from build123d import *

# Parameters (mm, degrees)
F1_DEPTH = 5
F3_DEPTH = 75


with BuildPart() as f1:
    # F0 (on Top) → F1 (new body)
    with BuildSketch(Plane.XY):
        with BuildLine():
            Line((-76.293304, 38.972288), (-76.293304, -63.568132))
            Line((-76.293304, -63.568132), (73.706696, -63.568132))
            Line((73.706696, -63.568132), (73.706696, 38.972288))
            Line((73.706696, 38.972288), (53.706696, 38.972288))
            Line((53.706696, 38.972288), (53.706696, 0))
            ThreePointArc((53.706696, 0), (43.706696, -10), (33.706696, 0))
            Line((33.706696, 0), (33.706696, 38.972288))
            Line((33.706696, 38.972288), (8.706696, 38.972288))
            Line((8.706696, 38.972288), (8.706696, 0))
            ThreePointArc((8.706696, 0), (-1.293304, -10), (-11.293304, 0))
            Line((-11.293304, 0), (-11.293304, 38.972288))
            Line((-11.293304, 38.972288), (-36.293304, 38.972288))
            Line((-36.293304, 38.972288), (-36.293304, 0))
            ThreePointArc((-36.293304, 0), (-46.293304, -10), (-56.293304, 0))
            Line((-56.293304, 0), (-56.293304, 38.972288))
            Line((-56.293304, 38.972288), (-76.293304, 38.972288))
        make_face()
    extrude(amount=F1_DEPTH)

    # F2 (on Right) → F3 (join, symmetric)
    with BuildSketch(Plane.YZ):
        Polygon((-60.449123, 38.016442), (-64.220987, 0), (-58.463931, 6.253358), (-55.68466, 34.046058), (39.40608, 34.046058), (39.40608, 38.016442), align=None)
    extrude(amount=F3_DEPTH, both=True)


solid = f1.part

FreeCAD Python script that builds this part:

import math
import FreeCAD as App
import Part
import Sketcher

doc = App.newDocument("Part")
params = doc.addObject("Spreadsheet::Sheet", "Params")
for row, (alias, value) in enumerate([
    ("sketch1_radius", "10 mm"),
    ("sketch1_width", "150 mm"),
    ("sketch1_width2", "20 mm"),
    ("pad1_length", "5 mm"),
    ("pad2_length", "150 mm"),
], start=1):
    params.set(f"A{row}", alias)
    params.set(f"B{row}", "=" + value)
    params.setAlias(f"B{row}", alias)

body = doc.addObject("PartDesign::Body", "Body")

sketch1 = body.newObject("Sketcher::SketchObject", "Sketch")
sketch1.AttachmentSupport = (doc.getObject("XY_Plane"), [""])
sketch1.MapMode = "FlatFace"
sketch1.addGeometry(Part.LineSegment(App.Vector(-76.293304, 38.972288, 0), App.Vector(-76.293304, -63.568132, 0)), False)
sketch1.addGeometry(Part.LineSegment(App.Vector(-76.293304, -63.568132, 0), App.Vector(73.706696, -63.568132, 0)), False)
sketch1.addGeometry(Part.LineSegment(App.Vector(73.706696, -63.568132, 0), App.Vector(73.706696, 38.972288, 0)), False)
sketch1.addGeometry(Part.LineSegment(App.Vector(73.706696, 38.972288, 0), App.Vector(53.706696, 38.972288, 0)), False)
sketch1.addGeometry(Part.LineSegment(App.Vector(53.706696, 38.972288, 0), App.Vector(53.706696, 0, 0)), False)
sketch1.addGeometry(Part.ArcOfCircle(Part.Circle(App.Vector(43.706696, 0, 0), App.Vector(0, 0, 1), 10), math.radians(180), math.radians(360)), False)
sketch1.addGeometry(Part.LineSegment(App.Vector(33.706696, 0, 0), App.Vector(33.706696, 38.972288, 0)), False)
sketch1.addGeometry(Part.LineSegment(App.Vector(33.706696, 38.972288, 0), App.Vector(8.706696, 38.972288, 0)), False)
sketch1.addGeometry(Part.LineSegment(App.Vector(8.706696, 38.972288, 0), App.Vector(8.706696, 0, 0)), False)
sketch1.addGeometry(Part.ArcOfCircle(Part.Circle(App.Vector(-1.293304, 0, 0), App.Vector(0, 0, 1), 10), math.radians(180), math.radians(360)), False)
sketch1.addGeometry(Part.LineSegment(App.Vector(-11.293304, 0, 0), App.Vector(-11.293304, 38.972288, 0)), False)
sketch1.addGeometry(Part.LineSegment(App.Vector(-11.293304, 38.972288, 0), App.Vector(-36.293304, 38.972288, 0)), False)
sketch1.addGeometry(Part.LineSegment(App.Vector(-36.293304, 38.972288, 0), App.Vector(-36.293304, 0, 0)), False)
sketch1.addGeometry(Part.ArcOfCircle(Part.Circle(App.Vector(-46.293304, 0, 0), App.Vector(0, 0, 1), 10), math.radians(180), math.radians(360)), False)
sketch1.addGeometry(Part.LineSegment(App.Vector(-56.293304, 0, 0), App.Vector(-56.293304, 38.972288, 0)), False)
sketch1.addGeometry(Part.LineSegment(App.Vector(-56.293304, 38.972288, 0), App.Vector(-76.293304, 38.972288, 0)), False)
sketch1.addConstraint(Sketcher.Constraint("Coincident", 0, 2, 1, 1))
sketch1.addConstraint(Sketcher.Constraint("Coincident", 1, 2, 2, 1))
sketch1.addConstraint(Sketcher.Constraint("Coincident", 2, 2, 3, 1))
sketch1.addConstraint(Sketcher.Constraint("Coincident", 3, 2, 4, 1))
sketch1.addConstraint(Sketcher.Constraint("Tangent", 4, 2, 5, 2))
sketch1.addConstraint(Sketcher.Constraint("Tangent", 5, 1, 6, 1))
sketch1.addConstraint(Sketcher.Constraint("Coincident", 6, 2, 7, 1))
sketch1.addConstraint(Sketcher.Constraint("Coincident", 7, 2, 8, 1))
sketch1.addConstraint(Sketcher.Constraint("Tangent", 8, 2, 9, 2))
sketch1.addConstraint(Sketcher.Constraint("Tangent", 9, 1, 10, 1))
sketch1.addConstraint(Sketcher.Constraint("Coincident", 10, 2, 11, 1))
sketch1.addConstraint(Sketcher.Constraint("Coincident", 11, 2, 12, 1))
sketch1.addConstraint(Sketcher.Constraint("Tangent", 12, 2, 13, 2))
sketch1.addConstraint(Sketcher.Constraint("Tangent", 13, 1, 14, 1))
sketch1.addConstraint(Sketcher.Constraint("Coincident", 14, 2, 15, 1))
sketch1.addConstraint(Sketcher.Constraint("Coincident", 15, 2, 0, 1))
sketch1.addConstraint(Sketcher.Constraint("Vertical", 0))
sketch1.addConstraint(Sketcher.Constraint("Horizontal", 1))
sketch1.addConstraint(Sketcher.Constraint("Vertical", 2))
sketch1.addConstraint(Sketcher.Constraint("Horizontal", 3))
sketch1.addConstraint(Sketcher.Constraint("Vertical", 4))
sketch1.addConstraint(Sketcher.Constraint("Vertical", 6))
sketch1.addConstraint(Sketcher.Constraint("Horizontal", 7))
sketch1.addConstraint(Sketcher.Constraint("Vertical", 8))
sketch1.addConstraint(Sketcher.Constraint("Vertical", 10))
sketch1.addConstraint(Sketcher.Constraint("Horizontal", 11))
sketch1.addConstraint(Sketcher.Constraint("Vertical", 12))
sketch1.addConstraint(Sketcher.Constraint("Vertical", 14))
sketch1.addConstraint(Sketcher.Constraint("Horizontal", 15))
sketch1.addConstraint(Sketcher.Constraint("Equal", 5, 9))
sketch1.addConstraint(Sketcher.Constraint("Equal", 9, 13))
sketch1.addConstraint(Sketcher.Constraint("PointOnObject", 5, 3, -1))
sketch1.addConstraint(Sketcher.Constraint("PointOnObject", 9, 3, -1))
sketch1.addConstraint(Sketcher.Constraint("PointOnObject", 13, 3, -1))
sketch1.addConstraint(Sketcher.Constraint("Horizontal", 3, 2, 6, 2))
sketch1.addConstraint(Sketcher.Constraint("Horizontal", 7, 2, 10, 2))
sketch1.addConstraint(Sketcher.Constraint("Horizontal", 11, 2, 14, 2))
sketch1.addConstraint(Sketcher.Constraint("Equal", 7, 11))
sketch1.addConstraint(Sketcher.Constraint("Equal", 3, 15))
sketch1.addConstraint(Sketcher.Constraint("Radius", 5, 10.0))
sketch1.addConstraint(Sketcher.Constraint("DistanceX", 1, 1, 1, 2, 150.0))
sketch1.addConstraint(Sketcher.Constraint("DistanceX", 3, 2, 3, 1, 20.0))
sketch1.addConstraint(Sketcher.Constraint("DistanceY", 0, 2, 0, 1, 102.54042))
sketch1.addConstraint(Sketcher.Constraint("DistanceY", 4, 2, 4, 1, 38.972288))
sketch1.addConstraint(Sketcher.Constraint("DistanceX", -1, 1, 5, 3, 43.706696))
sketch1.setExpression("Constraints[39]", "Params.sketch1_radius")
sketch1.setExpression("Constraints[40]", "Params.sketch1_width")
sketch1.setExpression("Constraints[41]", "Params.sketch1_width2")
pad1 = body.newObject("PartDesign::Pad", "Pad")
pad1.Profile = sketch1
pad1.setExpression("Length", "Params.pad1_length")

sketch2 = body.newObject("Sketcher::SketchObject", "Sketch001")
sketch2.AttachmentSupport = (doc.getObject("YZ_Plane"), [""])
sketch2.MapMode = "FlatFace"
sketch2.addGeometry(Part.LineSegment(App.Vector(-60.449123, 38.016442, 0), App.Vector(-64.220987, 0, 0)), False)
sketch2.addGeometry(Part.LineSegment(App.Vector(-64.220987, 0, 0), App.Vector(-58.463931, 6.253358, 0)), False)
sketch2.addGeometry(Part.LineSegment(App.Vector(-58.463931, 6.253358, 0), App.Vector(-55.68466, 34.046058, 0)), False)
sketch2.addGeometry(Part.LineSegment(App.Vector(-55.68466, 34.046058, 0), App.Vector(39.40608, 34.046058, 0)), False)
sketch2.addGeometry(Part.LineSegment(App.Vector(39.40608, 34.046058, 0), App.Vector(39.40608, 38.016442, 0)), False)
sketch2.addGeometry(Part.LineSegment(App.Vector(39.40608, 38.016442, 0), App.Vector(-60.449123, 38.016442, 0)), False)
sketch2.addConstraint(Sketcher.Constraint("Coincident", 0, 2, 1, 1))
sketch2.addConstraint(Sketcher.Constraint("Coincident", 1, 2, 2, 1))
sketch2.addConstraint(Sketcher.Constraint("Coincident", 2, 2, 3, 1))
sketch2.addConstraint(Sketcher.Constraint("Coincident", 3, 2, 4, 1))
sketch2.addConstraint(Sketcher.Constraint("Coincident", 4, 2, 5, 1))
sketch2.addConstraint(Sketcher.Constraint("Coincident", 5, 2, 0, 1))
sketch2.addConstraint(Sketcher.Constraint("Horizontal", 3))
sketch2.addConstraint(Sketcher.Constraint("Vertical", 4))
sketch2.addConstraint(Sketcher.Constraint("Horizontal", 5))
sketch2.addConstraint(Sketcher.Constraint("PointOnObject", 0, 2, -1))
sketch2.addConstraint(Sketcher.Constraint("Distance", 0, 38.2031))
sketch2.addConstraint(Sketcher.Constraint("DistanceX", 3, 1, 3, 2, 95.09074))
sketch2.addConstraint(Sketcher.Constraint("DistanceY", 1, 2, 2, 2, 27.7927))
sketch2.addConstraint(Sketcher.Constraint("DistanceX", 5, 2, 5, 1, 99.855203))
sketch2.addConstraint(Sketcher.Constraint("DistanceY", 4, 1, 4, 2, 3.970384))
sketch2.addConstraint(Sketcher.Constraint("DistanceX", 1, 2, -1, 1, 58.463931))
sketch2.addConstraint(Sketcher.Constraint("DistanceY", -1, 1, 1, 2, 6.253358))
sketch2.addConstraint(Sketcher.Constraint("DistanceX", 2, 2, -1, 1, 55.68466))
pad2 = body.newObject("PartDesign::Pad", "Pad001")
pad2.Profile = sketch2
pad2.setExpression("Length", "Params.pad2_length")
pad2.Midplane = True

doc.recompute()
